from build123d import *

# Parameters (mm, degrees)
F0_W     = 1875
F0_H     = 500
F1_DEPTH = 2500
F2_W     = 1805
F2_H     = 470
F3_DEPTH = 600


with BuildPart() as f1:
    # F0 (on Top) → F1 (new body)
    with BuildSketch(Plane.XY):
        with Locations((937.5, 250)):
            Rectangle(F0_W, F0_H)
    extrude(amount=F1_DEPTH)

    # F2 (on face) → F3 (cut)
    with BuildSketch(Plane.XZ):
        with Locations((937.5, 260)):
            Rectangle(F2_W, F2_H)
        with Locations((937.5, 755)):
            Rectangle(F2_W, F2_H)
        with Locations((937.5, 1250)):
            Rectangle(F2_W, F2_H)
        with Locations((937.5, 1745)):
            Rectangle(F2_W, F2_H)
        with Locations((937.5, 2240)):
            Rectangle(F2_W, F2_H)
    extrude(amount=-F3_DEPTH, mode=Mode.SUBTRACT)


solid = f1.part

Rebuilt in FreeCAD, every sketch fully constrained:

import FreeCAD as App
import Part
import Sketcher
from FreeCAD import Vector

doc = App.newDocument("Part")
body = doc.addObject("PartDesign::Body", "Body")

sketch1 = doc.addObject("Sketcher::SketchObject", "Sketch")
body.addObject(sketch1)
sketch1.AttachmentSupport = (doc.XY_Plane, [""])
sketch1.MapMode = "FlatFace"
sketch1.addGeometry(Part.LineSegment(Vector(0, 500, 0), Vector(0, 0, 0)), False)
sketch1.addGeometry(Part.LineSegment(Vector(0, 0, 0), Vector(1875, 0, 0)), False)
sketch1.addGeometry(Part.LineSegment(Vector(1875, 0, 0), Vector(1875, 500, 0)), False)
sketch1.addGeometry(Part.LineSegment(Vector(1875, 500, 0), Vector(0, 500, 0)), False)
sketch1.addConstraint(Sketcher.Constraint("Coincident", 0, 2, 1, 1))
sketch1.addConstraint(Sketcher.Constraint("Coincident", 1, 2, 2, 1))
sketch1.addConstraint(Sketcher.Constraint("Coincident", 2, 2, 3, 1))
sketch1.addConstraint(Sketcher.Constraint("Coincident", 3, 2, 0, 1))
sketch1.addConstraint(Sketcher.Constraint("Vertical", 0))
sketch1.addConstraint(Sketcher.Constraint("Horizontal", 1))
sketch1.addConstraint(Sketcher.Constraint("Vertical", 2))
sketch1.addConstraint(Sketcher.Constraint("Horizontal", 3))
sketch1.addConstraint(Sketcher.Constraint("Coincident", 0, 2, -1, 1))
sketch1.addConstraint(Sketcher.Constraint("DistanceX", 1, 1, 1, 2, 1875.0))
sketch1.addConstraint(Sketcher.Constraint("DistanceY", 0, 2, 0, 1, 500.0))
pad1 = doc.addObject("PartDesign::Pad", "Pad")
body.addObject(pad1)
pad1.Profile = sketch1
pad1.Length = 2500

sketch2 = doc.addObject("Sketcher::SketchObject", "Sketch001")
body.addObject(sketch2)
sketch2.AttachmentSupport = (doc.XZ_Plane, [""])
sketch2.MapMode = "FlatFace"
sketch2.addGeometry(Part.LineSegment(Vector(35, 495, 0), Vector(35, 25, 0)), False)
sketch2.addGeometry(Part.LineSegment(Vector(35, 25, 0), Vector(1840, 25, 0)), False)
sketch2.addGeometry(Part.LineSegment(Vector(1840, 25, 0), Vector(1840, 495, 0)), False)
sketch2.addGeometry(Part.LineSegment(Vector(1840, 495, 0), Vector(35, 495, 0)), False)
sketch2.addGeometry(Part.LineSegment(Vector(35, 990, 0), Vector(35, 520, 0)), False)
sketch2.addGeometry(Part.LineSegment(Vector(35, 520, 0), Vector(1840, 520, 0)), False)
sketch2.addGeometry(Part.LineSegment(Vector(1840, 520, 0), Vector(1840, 990, 0)), False)
sketch2.addGeometry(Part.LineSegment(Vector(1840, 990, 0), Vector(35, 990, 0)), False)
sketch2.addGeometry(Part.LineSegment(Vector(35, 1485, 0), Vector(35, 1015, 0)), False)
sketch2.addGeometry(Part.LineSegment(Vector(35, 1015, 0), Vector(1840, 1015, 0)), False)
sketch2.addGeometry(Part.LineSegment(Vector(1840, 1015, 0), Vector(1840, 1485, 0)), False)
sketch2.addGeometry(Part.LineSegment(Vector(1840, 1485, 0), Vector(35, 1485, 0)), False)
sketch2.addGeometry(Part.LineSegment(Vector(35, 1980, 0), Vector(35, 1510, 0)), False)
sketch2.addGeometry(Part.LineSegment(Vector(35, 1510, 0), Vector(1840, 1510, 0)), False)
sketch2.addGeometry(Part.LineSegment(Vector(1840, 1510, 0), Vector(1840, 1980, 0)), False)
sketch2.addGeometry(Part.LineSegment(Vector(1840, 1980, 0), Vector(35, 1980, 0)), False)
sketch2.addGeometry(Part.LineSegment(Vector(35, 2475, 0), Vector(35, 2005, 0)), False)
sketch2.addGeometry(Part.LineSegment(Vector(35, 2005, 0), Vector(1840, 2005, 0)), False)
sketch2.addGeometry(Part.LineSegment(Vector(1840, 2005, 0), Vector(1840, 2475, 0)), False)
sketch2.addGeometry(Part.LineSegment(Vector(1840, 2475, 0), Vector(35, 2475, 0)), False)
sketch2.addConstraint(Sketcher.Constraint("Coincident", 0, 2, 1, 1))
sketch2.addConstraint(Sketcher.Constraint("Coincident", 1, 2, 2, 1))
sketch2.addConstraint(Sketcher.Constraint("Coincident", 2, 2, 3, 1))
sketch2.addConstraint(Sketcher.Constraint("Coincident", 3, 2, 0, 1))
sketch2.addConstraint(Sketcher.Constraint("Coincident", 4, 2, 5, 1))
sketch2.addConstraint(Sketcher.Constraint("Coincident", 5, 2, 6, 1))
sketch2.addConstraint(Sketcher.Constraint("Coincident", 6, 2, 7, 1))
sketch2.addConstraint(Sketcher.Constraint("Coincident", 7, 2, 4, 1))
sketch2.addConstraint(Sketcher.Constraint("Coincident", 8, 2, 9, 1))
sketch2.addConstraint(Sketcher.Constraint("Coincident", 9, 2, 10, 1))
sketch2.addConstraint(Sketcher.Constraint("Coincident", 10, 2, 11, 1))
sketch2.addConstraint(Sketcher.Constraint("Coincident", 11, 2, 8, 1))
sketch2.addConstraint(Sketcher.Constraint("Coincident", 12, 2, 13, 1))
sketch2.addConstraint(Sketcher.Constraint("Coincident", 13, 2, 14, 1))
sketch2.addConstraint(Sketcher.Constraint("Coincident", 14, 2, 15, 1))
sketch2.addConstraint(Sketcher.Constraint("Coincident", 15, 2, 12, 1))
sketch2.addConstraint(Sketcher.Constraint("Coincident", 16, 2, 17, 1))
sketch2.addConstraint(Sketcher.Constraint("Coincident", 17, 2, 18, 1))
sketch2.addConstraint(Sketcher.Constraint("Coincident", 18, 2, 19, 1))
sketch2.addConstraint(Sketcher.Constraint("Coincident", 19, 2, 16, 1))
sketch2.addConstraint(Sketcher.Constraint("Vertical", 0))
sketch2.addConstraint(Sketcher.Constraint("Horizontal", 1))
sketch2.addConstraint(Sketcher.Constraint("Vertical", 2))
sketch2.addConstraint(Sketcher.Constraint("Horizontal", 3))
sketch2.addConstraint(Sketcher.Constraint("Vertical", 4))
sketch2.addConstraint(Sketcher.Constraint("Horizontal", 5))
sketch2.addConstraint(Sketcher.Constraint("Vertical", 6))
sketch2.addConstraint(Sketcher.Constraint("Horizontal", 7))
sketch2.addConstraint(Sketcher.Constraint("Vertical", 8))
sketch2.addConstraint(Sketcher.Constraint("Horizontal", 9))
sketch2.addConstraint(Sketcher.Constraint("Vertical", 10))
sketch2.addConstraint(Sketcher.Constraint("Horizontal", 11))
sketch2.addConstraint(Sketcher.Constraint("Vertical", 12))
sketch2.addConstraint(Sketcher.Constraint("Horizontal", 13))
sketch2.addConstraint(Sketcher.Constraint("Vertical", 14))
sketch2.addConstraint(Sketcher.Constraint("Horizontal", 15))
sketch2.addConstraint(Sketcher.Constraint("Vertical", 16))
sketch2.addConstraint(Sketcher.Constraint("Horizontal", 17))
sketch2.addConstraint(Sketcher.Constraint("Vertical", 18))
sketch2.addConstraint(Sketcher.Constraint("Horizontal", 19))
sketch2.addConstraint(Sketcher.Constraint("Vertical", 3, 2, 4, 2))
sketch2.addConstraint(Sketcher.Constraint("Vertical", 2, 2, 5, 2))
sketch2.addConstraint(Sketcher.Constraint("Vertical", 7, 2, 8, 2))
sketch2.addConstraint(Sketcher.Constraint("Vertical", 6, 2, 9, 2))
sketch2.addConstraint(Sketcher.Constraint("Vertical", 11, 2, 12, 2))
sketch2.addConstraint(Sketcher.Constraint("Vertical", 10, 2, 13, 2))
sketch2.addConstraint(Sketcher.Constraint("Vertical", 15, 2, 16, 2))
sketch2.addConstraint(Sketcher.Constraint("Vertical", 14, 2, 17, 2))
sketch2.addConstraint(Sketcher.Constraint("Equal", 2, 4))
sketch2.addConstraint(Sketcher.Constraint("Equal", 6, 8))
sketch2.addConstraint(Sketcher.Constraint("Equal", 10, 12))
sketch2.addConstraint(Sketcher.Constraint("Equal", 14, 16))
sketch2.addConstraint(Sketcher.Constraint("DistanceX", 1, 1, 1, 2, 1805.0))
sketch2.addConstraint(Sketcher.Constraint("DistanceY", 0, 2, 0, 1, 470.0))
sketch2.addConstraint(Sketcher.Constraint("DistanceX", -1, 1, 0, 2, 35.0))
sketch2.addConstraint(Sketcher.Constraint("DistanceY", -1, 1, 0, 2, 25.0))
sketch2.addConstraint(Sketcher.Constraint("DistanceY", -1, 1, 4, 2, 520.0))
sketch2.addConstraint(Sketcher.Constraint("DistanceY", -1, 1, 8, 2, 1015.0))
sketch2.addConstraint(Sketcher.Constraint("DistanceY", -1, 1, 12, 2, 1510.0))
sketch2.addConstraint(Sketcher.Constraint("DistanceY", -1, 1, 16, 2, 2005.0))
pocket1 = doc.addObject("PartDesign::Pocket", "Pocket")
body.addObject(pocket1)
pocket1.Profile = sketch2
pocket1.Length = 600

doc.recompute()
